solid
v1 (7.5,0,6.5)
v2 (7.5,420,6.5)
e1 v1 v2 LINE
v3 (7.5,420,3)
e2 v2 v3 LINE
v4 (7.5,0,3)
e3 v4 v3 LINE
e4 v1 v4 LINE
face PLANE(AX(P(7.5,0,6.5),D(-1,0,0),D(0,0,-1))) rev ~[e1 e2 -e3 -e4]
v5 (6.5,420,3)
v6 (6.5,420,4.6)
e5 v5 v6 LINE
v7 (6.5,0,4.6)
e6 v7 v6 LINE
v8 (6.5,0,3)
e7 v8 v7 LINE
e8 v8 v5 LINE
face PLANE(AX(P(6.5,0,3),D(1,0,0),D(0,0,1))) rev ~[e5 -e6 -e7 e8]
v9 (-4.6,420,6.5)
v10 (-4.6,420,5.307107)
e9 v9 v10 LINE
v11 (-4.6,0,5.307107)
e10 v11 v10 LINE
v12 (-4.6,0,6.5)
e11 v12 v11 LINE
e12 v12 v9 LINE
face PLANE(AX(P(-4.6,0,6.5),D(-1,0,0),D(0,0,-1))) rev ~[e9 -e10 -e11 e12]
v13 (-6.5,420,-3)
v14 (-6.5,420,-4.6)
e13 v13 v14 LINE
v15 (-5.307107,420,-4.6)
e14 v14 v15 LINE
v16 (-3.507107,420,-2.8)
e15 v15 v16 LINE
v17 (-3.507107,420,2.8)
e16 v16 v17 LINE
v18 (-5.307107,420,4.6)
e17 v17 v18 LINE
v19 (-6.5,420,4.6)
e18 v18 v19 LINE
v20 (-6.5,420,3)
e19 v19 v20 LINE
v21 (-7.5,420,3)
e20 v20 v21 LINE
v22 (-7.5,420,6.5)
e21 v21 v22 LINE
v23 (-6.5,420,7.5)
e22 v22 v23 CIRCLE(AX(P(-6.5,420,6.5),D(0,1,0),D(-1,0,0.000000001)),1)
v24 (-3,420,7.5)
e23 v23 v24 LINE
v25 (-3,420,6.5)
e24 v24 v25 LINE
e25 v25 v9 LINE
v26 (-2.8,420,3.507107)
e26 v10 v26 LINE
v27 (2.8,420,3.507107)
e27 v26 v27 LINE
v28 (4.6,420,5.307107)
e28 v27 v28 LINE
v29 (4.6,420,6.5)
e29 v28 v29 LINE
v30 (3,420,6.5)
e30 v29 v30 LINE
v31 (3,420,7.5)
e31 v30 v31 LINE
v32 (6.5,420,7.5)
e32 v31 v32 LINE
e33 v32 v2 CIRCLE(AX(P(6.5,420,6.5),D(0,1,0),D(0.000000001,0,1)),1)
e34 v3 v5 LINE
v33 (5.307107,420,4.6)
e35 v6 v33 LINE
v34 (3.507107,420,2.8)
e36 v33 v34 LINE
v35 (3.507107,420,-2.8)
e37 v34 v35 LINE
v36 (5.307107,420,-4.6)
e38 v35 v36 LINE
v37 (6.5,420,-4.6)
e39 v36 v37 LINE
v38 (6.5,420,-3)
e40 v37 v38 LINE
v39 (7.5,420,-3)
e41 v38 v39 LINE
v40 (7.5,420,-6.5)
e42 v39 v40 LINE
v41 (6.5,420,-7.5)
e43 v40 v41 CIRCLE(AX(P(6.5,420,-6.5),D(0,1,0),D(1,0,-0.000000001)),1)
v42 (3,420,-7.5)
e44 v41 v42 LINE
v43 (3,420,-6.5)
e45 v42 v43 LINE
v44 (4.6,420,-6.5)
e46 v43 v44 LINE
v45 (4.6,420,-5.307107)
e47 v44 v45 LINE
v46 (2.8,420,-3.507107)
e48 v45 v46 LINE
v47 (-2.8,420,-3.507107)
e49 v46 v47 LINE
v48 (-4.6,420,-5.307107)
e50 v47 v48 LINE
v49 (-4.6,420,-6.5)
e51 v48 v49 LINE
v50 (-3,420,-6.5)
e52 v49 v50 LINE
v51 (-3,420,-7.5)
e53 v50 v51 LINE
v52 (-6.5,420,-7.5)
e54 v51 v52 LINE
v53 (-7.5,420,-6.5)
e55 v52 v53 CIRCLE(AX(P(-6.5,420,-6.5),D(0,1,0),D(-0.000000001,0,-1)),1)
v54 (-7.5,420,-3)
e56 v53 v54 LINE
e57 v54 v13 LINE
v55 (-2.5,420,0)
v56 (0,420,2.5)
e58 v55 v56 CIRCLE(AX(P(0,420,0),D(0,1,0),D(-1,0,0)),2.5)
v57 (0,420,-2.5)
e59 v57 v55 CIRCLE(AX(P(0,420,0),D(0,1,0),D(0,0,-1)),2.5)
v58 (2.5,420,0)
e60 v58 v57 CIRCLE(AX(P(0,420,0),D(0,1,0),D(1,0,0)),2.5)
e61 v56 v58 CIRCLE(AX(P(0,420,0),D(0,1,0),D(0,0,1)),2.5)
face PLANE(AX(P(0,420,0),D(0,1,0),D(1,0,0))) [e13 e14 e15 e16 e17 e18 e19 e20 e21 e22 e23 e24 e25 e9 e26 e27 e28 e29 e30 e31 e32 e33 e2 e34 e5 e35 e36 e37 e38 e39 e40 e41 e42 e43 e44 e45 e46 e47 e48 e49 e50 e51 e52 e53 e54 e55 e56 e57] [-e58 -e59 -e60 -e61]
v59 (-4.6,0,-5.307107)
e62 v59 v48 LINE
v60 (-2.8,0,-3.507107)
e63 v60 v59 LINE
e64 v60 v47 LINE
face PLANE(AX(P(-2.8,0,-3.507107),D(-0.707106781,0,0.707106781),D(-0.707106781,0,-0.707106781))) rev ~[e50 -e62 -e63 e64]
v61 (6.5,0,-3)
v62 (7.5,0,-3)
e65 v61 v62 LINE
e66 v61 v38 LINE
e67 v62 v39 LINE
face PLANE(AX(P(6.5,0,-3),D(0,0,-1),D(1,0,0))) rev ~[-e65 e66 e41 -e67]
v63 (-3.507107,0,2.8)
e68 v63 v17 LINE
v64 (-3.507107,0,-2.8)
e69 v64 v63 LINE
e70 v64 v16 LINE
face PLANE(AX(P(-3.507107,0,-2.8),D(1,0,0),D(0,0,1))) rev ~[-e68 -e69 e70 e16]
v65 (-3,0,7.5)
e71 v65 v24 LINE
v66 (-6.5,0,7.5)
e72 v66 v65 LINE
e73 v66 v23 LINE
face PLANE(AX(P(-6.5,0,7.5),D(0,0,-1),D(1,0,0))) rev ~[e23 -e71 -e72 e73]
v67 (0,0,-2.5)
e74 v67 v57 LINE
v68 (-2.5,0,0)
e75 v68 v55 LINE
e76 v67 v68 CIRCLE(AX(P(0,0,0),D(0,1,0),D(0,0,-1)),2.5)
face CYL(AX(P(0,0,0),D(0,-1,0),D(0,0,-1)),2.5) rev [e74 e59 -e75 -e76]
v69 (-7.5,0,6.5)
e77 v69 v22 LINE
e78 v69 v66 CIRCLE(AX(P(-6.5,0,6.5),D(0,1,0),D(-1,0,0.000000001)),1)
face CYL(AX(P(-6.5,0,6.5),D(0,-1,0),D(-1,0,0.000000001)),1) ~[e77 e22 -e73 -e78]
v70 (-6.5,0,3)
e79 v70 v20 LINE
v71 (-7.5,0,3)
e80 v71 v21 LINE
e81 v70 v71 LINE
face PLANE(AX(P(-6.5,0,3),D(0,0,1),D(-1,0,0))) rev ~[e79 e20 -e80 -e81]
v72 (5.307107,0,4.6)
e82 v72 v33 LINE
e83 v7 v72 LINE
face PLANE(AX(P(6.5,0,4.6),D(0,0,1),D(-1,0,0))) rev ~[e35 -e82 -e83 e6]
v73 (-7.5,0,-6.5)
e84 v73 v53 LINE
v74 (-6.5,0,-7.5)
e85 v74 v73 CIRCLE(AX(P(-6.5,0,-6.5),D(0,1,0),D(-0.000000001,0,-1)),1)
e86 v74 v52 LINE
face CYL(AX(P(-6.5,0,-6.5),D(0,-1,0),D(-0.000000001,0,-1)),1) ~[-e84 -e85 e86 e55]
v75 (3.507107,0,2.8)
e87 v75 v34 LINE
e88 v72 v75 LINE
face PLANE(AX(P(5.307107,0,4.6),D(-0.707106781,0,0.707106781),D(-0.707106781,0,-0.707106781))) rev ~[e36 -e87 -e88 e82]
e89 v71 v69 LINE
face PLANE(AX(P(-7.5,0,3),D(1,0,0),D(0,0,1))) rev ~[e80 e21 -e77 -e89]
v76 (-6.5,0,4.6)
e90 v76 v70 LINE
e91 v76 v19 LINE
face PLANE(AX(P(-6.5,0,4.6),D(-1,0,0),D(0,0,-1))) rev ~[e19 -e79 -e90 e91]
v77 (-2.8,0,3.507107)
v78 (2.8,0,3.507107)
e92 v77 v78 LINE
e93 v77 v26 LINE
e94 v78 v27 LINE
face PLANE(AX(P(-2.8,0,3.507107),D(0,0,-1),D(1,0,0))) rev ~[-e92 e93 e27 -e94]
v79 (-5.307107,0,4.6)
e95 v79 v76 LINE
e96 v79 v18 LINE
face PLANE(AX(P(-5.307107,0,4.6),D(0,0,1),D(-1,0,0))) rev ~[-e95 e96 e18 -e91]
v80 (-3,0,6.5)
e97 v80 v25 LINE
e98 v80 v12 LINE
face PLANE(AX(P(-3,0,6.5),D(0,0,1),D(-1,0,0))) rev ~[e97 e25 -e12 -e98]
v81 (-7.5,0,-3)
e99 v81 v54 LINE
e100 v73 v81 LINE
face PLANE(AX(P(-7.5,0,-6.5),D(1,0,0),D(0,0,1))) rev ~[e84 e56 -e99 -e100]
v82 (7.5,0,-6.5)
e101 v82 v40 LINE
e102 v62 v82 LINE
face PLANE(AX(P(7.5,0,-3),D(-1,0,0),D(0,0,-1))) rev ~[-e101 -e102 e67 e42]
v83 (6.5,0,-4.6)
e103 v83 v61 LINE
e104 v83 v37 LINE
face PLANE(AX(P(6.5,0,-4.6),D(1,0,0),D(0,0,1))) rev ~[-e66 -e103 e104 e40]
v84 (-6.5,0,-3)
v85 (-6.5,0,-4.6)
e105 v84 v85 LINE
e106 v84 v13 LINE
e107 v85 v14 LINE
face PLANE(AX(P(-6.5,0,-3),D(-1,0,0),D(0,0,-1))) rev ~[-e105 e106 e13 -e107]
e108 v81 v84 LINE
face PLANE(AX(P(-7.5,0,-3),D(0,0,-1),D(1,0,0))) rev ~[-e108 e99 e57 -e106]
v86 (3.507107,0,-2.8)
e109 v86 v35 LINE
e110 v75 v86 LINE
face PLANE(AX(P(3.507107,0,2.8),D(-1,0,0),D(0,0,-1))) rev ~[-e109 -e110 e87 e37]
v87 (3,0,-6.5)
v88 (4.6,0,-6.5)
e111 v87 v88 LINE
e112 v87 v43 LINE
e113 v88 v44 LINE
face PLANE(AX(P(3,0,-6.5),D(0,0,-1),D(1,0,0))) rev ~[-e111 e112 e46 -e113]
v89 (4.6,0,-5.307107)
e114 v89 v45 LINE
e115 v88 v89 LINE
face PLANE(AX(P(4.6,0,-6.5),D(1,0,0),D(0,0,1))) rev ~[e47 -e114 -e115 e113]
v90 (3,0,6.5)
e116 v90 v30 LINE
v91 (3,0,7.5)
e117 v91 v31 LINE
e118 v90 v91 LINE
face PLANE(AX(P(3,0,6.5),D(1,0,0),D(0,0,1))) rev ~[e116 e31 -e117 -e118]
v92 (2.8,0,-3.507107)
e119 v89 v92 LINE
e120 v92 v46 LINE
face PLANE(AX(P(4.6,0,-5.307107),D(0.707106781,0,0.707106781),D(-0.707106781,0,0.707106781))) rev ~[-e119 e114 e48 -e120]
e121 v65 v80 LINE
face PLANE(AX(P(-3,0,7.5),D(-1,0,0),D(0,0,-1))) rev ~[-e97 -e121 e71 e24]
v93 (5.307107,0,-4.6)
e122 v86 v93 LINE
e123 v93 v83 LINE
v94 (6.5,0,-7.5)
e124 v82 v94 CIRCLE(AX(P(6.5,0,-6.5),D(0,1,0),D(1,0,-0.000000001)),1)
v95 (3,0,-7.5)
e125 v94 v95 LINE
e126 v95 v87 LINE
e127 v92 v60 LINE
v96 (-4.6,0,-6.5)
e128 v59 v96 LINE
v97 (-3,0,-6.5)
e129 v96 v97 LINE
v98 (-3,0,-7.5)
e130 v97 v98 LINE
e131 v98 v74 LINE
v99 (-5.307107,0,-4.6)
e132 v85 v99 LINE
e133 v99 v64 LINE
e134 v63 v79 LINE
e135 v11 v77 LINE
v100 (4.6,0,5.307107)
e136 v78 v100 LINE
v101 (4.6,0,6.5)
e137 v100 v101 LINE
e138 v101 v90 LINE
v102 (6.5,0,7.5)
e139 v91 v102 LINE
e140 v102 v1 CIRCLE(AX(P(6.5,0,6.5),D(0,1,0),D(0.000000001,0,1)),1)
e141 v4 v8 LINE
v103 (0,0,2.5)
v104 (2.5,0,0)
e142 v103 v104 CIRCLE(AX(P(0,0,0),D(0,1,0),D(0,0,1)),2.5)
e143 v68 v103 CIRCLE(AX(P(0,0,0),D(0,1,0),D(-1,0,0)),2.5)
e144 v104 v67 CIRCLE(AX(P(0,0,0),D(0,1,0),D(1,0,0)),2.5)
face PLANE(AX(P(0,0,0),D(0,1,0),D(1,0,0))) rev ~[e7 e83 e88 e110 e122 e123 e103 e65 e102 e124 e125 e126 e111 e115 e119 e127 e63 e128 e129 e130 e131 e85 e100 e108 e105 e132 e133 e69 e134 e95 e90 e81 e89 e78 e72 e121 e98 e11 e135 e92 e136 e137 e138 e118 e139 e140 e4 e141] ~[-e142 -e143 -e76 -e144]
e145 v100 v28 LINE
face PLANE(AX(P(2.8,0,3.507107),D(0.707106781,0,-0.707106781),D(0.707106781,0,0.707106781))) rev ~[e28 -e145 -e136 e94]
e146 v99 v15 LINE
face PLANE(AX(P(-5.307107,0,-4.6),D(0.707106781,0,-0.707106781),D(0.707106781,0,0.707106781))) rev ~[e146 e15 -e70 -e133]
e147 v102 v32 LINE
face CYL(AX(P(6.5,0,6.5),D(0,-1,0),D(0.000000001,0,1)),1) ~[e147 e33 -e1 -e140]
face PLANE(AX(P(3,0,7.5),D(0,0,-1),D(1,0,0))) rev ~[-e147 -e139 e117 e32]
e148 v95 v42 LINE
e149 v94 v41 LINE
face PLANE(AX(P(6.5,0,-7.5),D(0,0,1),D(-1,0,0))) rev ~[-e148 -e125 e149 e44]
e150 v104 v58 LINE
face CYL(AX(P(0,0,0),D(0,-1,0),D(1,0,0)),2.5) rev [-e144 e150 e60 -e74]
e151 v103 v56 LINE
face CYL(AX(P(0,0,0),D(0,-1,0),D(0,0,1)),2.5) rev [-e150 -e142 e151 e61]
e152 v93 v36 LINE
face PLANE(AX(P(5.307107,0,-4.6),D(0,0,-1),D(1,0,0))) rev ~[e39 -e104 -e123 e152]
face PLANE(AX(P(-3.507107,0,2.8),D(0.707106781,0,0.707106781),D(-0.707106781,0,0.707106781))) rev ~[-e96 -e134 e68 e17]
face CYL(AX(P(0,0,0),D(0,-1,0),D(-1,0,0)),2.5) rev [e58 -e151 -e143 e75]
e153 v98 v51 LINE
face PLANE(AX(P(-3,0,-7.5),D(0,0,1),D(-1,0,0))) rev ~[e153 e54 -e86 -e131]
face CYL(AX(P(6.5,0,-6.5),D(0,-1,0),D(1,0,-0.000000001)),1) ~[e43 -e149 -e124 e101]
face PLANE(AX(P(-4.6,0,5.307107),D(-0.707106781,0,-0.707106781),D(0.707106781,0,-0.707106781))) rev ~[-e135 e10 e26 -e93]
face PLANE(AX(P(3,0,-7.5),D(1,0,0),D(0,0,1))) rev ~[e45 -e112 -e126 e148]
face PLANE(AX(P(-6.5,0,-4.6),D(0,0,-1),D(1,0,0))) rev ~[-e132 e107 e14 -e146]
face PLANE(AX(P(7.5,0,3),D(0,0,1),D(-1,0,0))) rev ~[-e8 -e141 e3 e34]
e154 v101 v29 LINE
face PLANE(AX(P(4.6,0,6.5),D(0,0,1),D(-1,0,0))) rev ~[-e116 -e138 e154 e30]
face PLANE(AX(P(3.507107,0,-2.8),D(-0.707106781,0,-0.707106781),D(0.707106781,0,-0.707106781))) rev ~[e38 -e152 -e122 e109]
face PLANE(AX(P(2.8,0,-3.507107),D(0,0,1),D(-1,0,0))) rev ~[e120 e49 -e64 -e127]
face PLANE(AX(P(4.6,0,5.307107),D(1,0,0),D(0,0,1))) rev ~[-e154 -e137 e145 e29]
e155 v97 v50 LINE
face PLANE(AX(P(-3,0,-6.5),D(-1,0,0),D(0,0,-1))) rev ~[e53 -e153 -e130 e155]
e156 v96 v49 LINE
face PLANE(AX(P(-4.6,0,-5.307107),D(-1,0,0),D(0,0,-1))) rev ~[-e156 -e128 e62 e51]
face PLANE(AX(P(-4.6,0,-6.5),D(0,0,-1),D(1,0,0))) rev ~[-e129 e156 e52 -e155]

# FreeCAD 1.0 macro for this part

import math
import FreeCAD as App
import Part
import Sketcher

V = App.Vector
Q = App.Units.Quantity

doc = App.newDocument("Part")
params = doc.addObject("Spreadsheet::Sheet", "Params")
for row, (alias, value) in enumerate([
    ("sketch1_radius", "1 mm"),
    ("sketch1_radius2", "2.5 mm"),
    ("sketch1_width", "3.5 mm"),
    ("sketch1_width2", "1.6 mm"),
    ("sketch1_width3", "5.6 mm"),
    ("pad1_length", "420 mm"),
], start=1):
    params.set(f"A{row}", alias)
    params.set(f"B{row}", "=" + value)
    params.setAlias(f"B{row}", alias)

body = doc.addObject("PartDesign::Body", "Body")

# Sketch on XZ plane
sketch1 = body.newObject("Sketcher::SketchObject", "Sketch")
sketch1.AttachmentSupport = (doc.getObject("XZ_Plane"), [""])
sketch1.MapMode = "FlatFace"
sketch1.addGeometry([
    Part.LineSegment(V(-7.5, 3, 0), V(-7.5, 6.5, 0)),  # 0
    Part.ArcOfCircle(Part.Circle(V(-6.5, 6.5, 0), V(0, 0, 1), 1), math.radians(90), math.radians(180)),  # 1
    Part.LineSegment(V(-6.5, 7.5, 0), V(-3, 7.5, 0)),  # 2
    Part.LineSegment(V(-3, 7.5, 0), V(-3, 6.5, 0)),  # 3
    Part.LineSegment(V(-3, 6.5, 0), V(-4.6, 6.5, 0)),  # 4
    Part.LineSegment(V(-4.6, 6.5, 0), V(-4.6, 5.3, 0)),  # 5
    Part.LineSegment(V(-4.6, 5.3, 0), V(-2.8, 3.5, 0)),  # 6
    Part.LineSegment(V(-2.8, 3.5, 0), V(2.8, 3.5, 0)),  # 7
    Part.LineSegment(V(2.8, 3.5, 0), V(4.6, 5.3, 0)),  # 8
    Part.LineSegment(V(4.6, 5.3, 0), V(4.6, 6.5, 0)),  # 9
    Part.LineSegment(V(4.6, 6.5, 0), V(3, 6.5, 0)),  # 10
    Part.LineSegment(V(3, 6.5, 0), V(3, 7.5, 0)),  # 11
    Part.LineSegment(V(3, 7.5, 0), V(6.5, 7.5, 0)),  # 12
    Part.ArcOfCircle(Part.Circle(V(6.5, 6.5, 0), V(0, 0, 1), 1), math.radians(0), math.radians(90)),  # 13
    Part.LineSegment(V(7.5, 6.5, 0), V(7.5, 3, 0)),  # 14
    Part.LineSegment(V(7.5, 3, 0), V(6.5, 3, 0)),  # 15
    Part.LineSegment(V(6.5, 3, 0), V(6.5, 4.6, 0)),  # 16
    Part.LineSegment(V(6.5, 4.6, 0), V(5.3, 4.6, 0)),  # 17
    Part.LineSegment(V(5.3, 4.6, 0), V(3.5, 2.8, 0)),  # 18
    Part.LineSegment(V(3.5, 2.8, 0), V(3.5, -2.8, 0)),  # 19
    Part.LineSegment(V(3.5, -2.8, 0), V(5.3, -4.6, 0)),  # 20
    Part.LineSegment(V(5.3, -4.6, 0), V(6.5, -4.6, 0)),  # 21
    Part.LineSegment(V(6.5, -4.6, 0), V(6.5, -3, 0)),  # 22
    Part.LineSegment(V(6.5, -3, 0), V(7.5, -3, 0)),  # 23
    Part.LineSegment(V(7.5, -3, 0), V(7.5, -6.5, 0)),  # 24
    Part.ArcOfCircle(Part.Circle(V(6.5, -6.5, 0), V(0, 0, 1), 1), math.radians(-90), math.radians(0)),  # 25
    Part.LineSegment(V(6.5, -7.5, 0), V(3, -7.5, 0)),  # 26
    Part.LineSegment(V(3, -7.5, 0), V(3, -6.5, 0)),  # 27
    Part.LineSegment(V(3, -6.5, 0), V(4.6, -6.5, 0)),  # 28
    Part.LineSegment(V(4.6, -6.5, 0), V(4.6, -5.3, 0)),  # 29
    Part.LineSegment(V(4.6, -5.3, 0), V(2.8, -3.5, 0)),  # 30
    Part.LineSegment(V(2.8, -3.5, 0), V(-2.8, -3.5, 0)),  # 31
    Part.LineSegment(V(-2.8, -3.5, 0), V(-4.6, -5.3, 0)),  # 32
    Part.LineSegment(V(-4.6, -5.3, 0), V(-4.6, -6.5, 0)),  # 33
    Part.LineSegment(V(-4.6, -6.5, 0), V(-3, -6.5, 0)),  # 34
    Part.LineSegment(V(-3, -6.5, 0), V(-3, -7.5, 0)),  # 35
    Part.LineSegment(V(-3, -7.5, 0), V(-6.5, -7.5, 0)),  # 36
    Part.ArcOfCircle(Part.Circle(V(-6.5, -6.5, 0), V(0, 0, 1), 1), math.radians(-180), math.radians(-90)),  # 37
    Part.LineSegment(V(-7.5, -6.5, 0), V(-7.5, -3, 0)),  # 38
    Part.LineSegment(V(-7.5, -3, 0), V(-6.5, -3, 0)),  # 39
    Part.LineSegment(V(-6.5, -3, 0), V(-6.5, -4.6, 0)),  # 40
    Part.LineSegment(V(-6.5, -4.6, 0), V(-5.3, -4.6, 0)),  # 41
    Part.LineSegment(V(-5.3, -4.6, 0), V(-3.5, -2.8, 0)),  # 42
    Part.LineSegment(V(-3.5, -2.8, 0), V(-3.5, 2.8, 0)),  # 43
    Part.LineSegment(V(-3.5, 2.8, 0), V(-5.3, 4.6, 0)),  # 44
    Part.LineSegment(V(-5.3, 4.6, 0), V(-6.5, 4.6, 0)),  # 45
    Part.LineSegment(V(-6.5, 4.6, 0), V(-6.5, 3, 0)),  # 46
    Part.LineSegment(V(-6.5, 3, 0), V(-7.5, 3, 0)),  # 47
    Part.ArcOfCircle(Part.Circle(V(0, 0, 0), V(0, 0, 1), 2.5), math.radians(90), math.radians(180)),  # 48
    Part.ArcOfCircle(Part.Circle(V(0, 0, 0), V(0, 0, 1), 2.5), math.radians(180), math.radians(270)),  # 49
    Part.ArcOfCircle(Part.Circle(V(0, 0, 0), V(0, 0, 1), 2.5), math.radians(-90), math.radians(0)),  # 50
    Part.ArcOfCircle(Part.Circle(V(0, 0, 0), V(0, 0, 1), 2.5), math.radians(0), math.radians(90)),  # 51
], False)
sketch1.addConstraint([
    Sketcher.Constraint("Tangent", 0, 2, 1, 2),
    Sketcher.Constraint("Tangent", 1, 1, 2, 1),
    Sketcher.Constraint("Coincident", 2, 2, 3, 1),
    Sketcher.Constraint("Coincident", 3, 2, 4, 1),
    Sketcher.Constraint("Coincident", 4, 2, 5, 1),
    Sketcher.Constraint("Coincident", 5, 2, 6, 1),
    Sketcher.Constraint("Coincident", 6, 2, 7, 1),
    Sketcher.Constraint("Coincident", 7, 2, 8, 1),
    Sketcher.Constraint("Coincident", 8, 2, 9, 1),
    Sketcher.Constraint("Coincident", 9, 2, 10, 1),
    Sketcher.Constraint("Coincident", 10, 2, 11, 1),
    Sketcher.Constraint("Coincident", 11, 2, 12, 1),
    Sketcher.Constraint("Tangent", 12, 2, 13, 2),
    Sketcher.Constraint("Tangent", 13, 1, 14, 1),
    Sketcher.Constraint("Coincident", 14, 2, 15, 1),
    Sketcher.Constraint("Coincident", 15, 2, 16, 1),
    Sketcher.Constraint("Coincident", 16, 2, 17, 1),
    Sketcher.Constraint("Coincident", 17, 2, 18, 1),
    Sketcher.Constraint("Coincident", 18, 2, 19, 1),
    Sketcher.Constraint("Coincident", 19, 2, 20, 1),
    Sketcher.Constraint("Coincident", 20, 2, 21, 1),
    Sketcher.Constraint("Coincident", 21, 2, 22, 1),
    Sketcher.Constraint("Coincident", 22, 2, 23, 1),
    Sketcher.Constraint("Coincident", 23, 2, 24, 1),
    Sketcher.Constraint("Tangent", 24, 2, 25, 2),
    Sketcher.Constraint("Tangent", 25, 1, 26, 1),
    Sketcher.Constraint("Coincident", 26, 2, 27, 1),
    Sketcher.Constraint("Coincident", 27, 2, 28, 1),
    Sketcher.Constraint("Coincident", 28, 2, 29, 1),
    Sketcher.Constraint("Coincident", 29, 2, 30, 1),
    Sketcher.Constraint("Coincident", 30, 2, 31, 1),
    Sketcher.Constraint("Coincident", 31, 2, 32, 1),
    Sketcher.Constraint("Coincident", 32, 2, 33, 1),
    Sketcher.Constraint("Coincident", 33, 2, 34, 1),
    Sketcher.Constraint("Coincident", 34, 2, 35, 1),
    Sketcher.Constraint("Coincident", 35, 2, 36, 1),
    Sketcher.Constraint("Tangent", 36, 2, 37, 2),
    Sketcher.Constraint("Tangent", 37, 1, 38, 1),
    Sketcher.Constraint("Coincident", 38, 2, 39, 1),
    Sketcher.Constraint("Coincident", 39, 2, 40, 1),
    Sketcher.Constraint("Coincident", 40, 2, 41, 1),
    Sketcher.Constraint("Coincident", 41, 2, 42, 1),
    Sketcher.Constraint("Coincident", 42, 2, 43, 1),
    Sketcher.Constraint("Coincident", 43, 2, 44, 1),
    Sketcher.Constraint("Coincident", 44, 2, 45, 1),
    Sketcher.Constraint("Coincident", 45, 2, 46, 1),
    Sketcher.Constraint("Coincident", 46, 2, 47, 1),
    Sketcher.Constraint("Coincident", 47, 2, 0, 1),
    Sketcher.Constraint("Tangent", 48, 2, 49, 1),
    Sketcher.Constraint("Tangent", 49, 2, 50, 1),
    Sketcher.Constraint("Tangent", 50, 2, 51, 1),
    Sketcher.Constraint("Tangent", 51, 2, 48, 1),
    Sketcher.Constraint("Vertical", 0),
    Sketcher.Constraint("Horizontal", 2),
    Sketcher.Constraint("Vertical", 3),
    Sketcher.Constraint("Horizontal", 4),
    Sketcher.Constraint("Vertical", 5),
    Sketcher.Constraint("Horizontal", 7),
    Sketcher.Constraint("Vertical", 9),
    Sketcher.Constraint("Horizontal", 10),
    Sketcher.Constraint("Vertical", 11),
    Sketcher.Constraint("Horizontal", 12),
    Sketcher.Constraint("Vertical", 14),
    Sketcher.Constraint("Horizontal", 15),
    Sketcher.Constraint("Vertical", 16),
    Sketcher.Constraint("Horizontal", 17),
    Sketcher.Constraint("Vertical", 19),
    Sketcher.Constraint("Horizontal", 21),
    Sketcher.Constraint("Vertical", 22),
    Sketcher.Constraint("Horizontal", 23),
    Sketcher.Constraint("Vertical", 24),
    Sketcher.Constraint("Horizontal", 26),
    Sketcher.Constraint("Vertical", 27),
    Sketcher.Constraint("Horizontal", 28),
    Sketcher.Constraint("Vertical", 29),
    Sketcher.Constraint("Horizontal", 31),
    Sketcher.Constraint("Vertical", 33),
    Sketcher.Constraint("Horizontal", 34),
    Sketcher.Constraint("Vertical", 35),
    Sketcher.Constraint("Horizontal", 36),
    Sketcher.Constraint("Vertical", 38),
    Sketcher.Constraint("Horizontal", 39),
    Sketcher.Constraint("Vertical", 40),
    Sketcher.Constraint("Horizontal", 41),
    Sketcher.Constraint("Vertical", 43),
    Sketcher.Constraint("Horizontal", 45),
    Sketcher.Constraint("Vertical", 46),
    Sketcher.Constraint("Horizontal", 47),
    Sketcher.Constraint("Coincident", 48, 3, -1, 1),
    Sketcher.Constraint("Equal", 1, 13),
    Sketcher.Constraint("Equal", 13, 25),
    Sketcher.Constraint("Equal", 25, 37),
    Sketcher.Constraint("Equal", 48, 49),
    Sketcher.Constraint("Symmetric", 1, 3, 25, 3, -1, 1),
    Sketcher.Constraint("Symmetric", 13, 3, 37, 3, -1, 1),
    Sketcher.Constraint("Symmetric", 3, 2, 27, 2, -1, 1),
    Sketcher.Constraint("Symmetric", 5, 2, 29, 2, -1, 1),
    Sketcher.Constraint("Symmetric", 6, 2, 30, 2, -1, 1),
    Sketcher.Constraint("Symmetric", 8, 2, 32, 2, -1, 1),
    Sketcher.Constraint("Symmetric", 10, 2, 34, 2, -1, 1),
    Sketcher.Constraint("Symmetric", 15, 2, 39, 2, -1, 1),
    Sketcher.Constraint("Symmetric", 17, 2, 41, 2, -1, 1),
    Sketcher.Constraint("Symmetric", 18, 2, 42, 2, -1, 1),
    Sketcher.Constraint("Symmetric", 20, 2, 44, 2, -1, 1),
    Sketcher.Constraint("Symmetric", 22, 2, 46, 2, -1, 1),
    Sketcher.Constraint("Symmetric", 1, 3, 13, 3, -2),
    Sketcher.Constraint("Symmetric", 5, 2, 8, 2, -2),
    Sketcher.Constraint("Symmetric", 3, 2, 10, 2, -2),
    Sketcher.Constraint("Symmetric", 22, 2, 39, 2, -2),
    Sketcher.Constraint("Symmetric", 20, 2, 41, 2, -2),
    Sketcher.Constraint("PointOnObject", 48, 2, -1),
    Sketcher.Constraint("PointOnObject", 49, 2, -2),
    Sketcher.Constraint("PointOnObject", 50, 2, -1),
    Sketcher.Constraint("PointOnObject", 51, 2, -2),
    Sketcher.Constraint("Perpendicular", 6, 8),
    Sketcher.Constraint("Parallel", 8, 18),
    Sketcher.Constraint("Perpendicular", 18, 20),
    Sketcher.Constraint("Perpendicular", 30, 32),
    Sketcher.Constraint("Perpendicular", 42, 44),
    Sketcher.Constraint("Horizontal", 0, 2, 3, 2),
    Sketcher.Constraint("Horizontal", 19, 2, 42, 2),
    Sketcher.Constraint("Vertical", 12, 2, 15, 2),
    Sketcher.Constraint("Equal", 36, 0),
    Sketcher.Constraint("Equal", 45, 5),
    Sketcher.Constraint("Equal", 34, 16),
    Sketcher.Constraint("Equal", 31, 19),
    Sketcher.Constraint("Equal", 8, 18),
    Sketcher.Constraint("Radius", 1, Q("1 mm")),
    Sketcher.Constraint("Radius", 48, Q("2.5 mm")),
    Sketcher.Constraint("DistanceX", 2, 1, 2, 2, Q("3.5 mm")),
    Sketcher.Constraint("DistanceX", 4, 2, 4, 1, Q("1.6 mm")),
    Sketcher.Constraint("DistanceX", 7, 1, 7, 2, Q("5.6 mm")),
    Sketcher.Constraint("DistanceX", 2, 2, -1, 1, Q("3 mm")),
    Sketcher.Constraint("DistanceX", 17, 2, 17, 1, Q("1.192893 mm")),
])
sketch1.setExpression("Constraints[127]", "Params.sketch1_radius")
sketch1.setExpression("Constraints[128]", "Params.sketch1_radius2")
sketch1.setExpression("Constraints[129]", "Params.sketch1_width")
sketch1.setExpression("Constraints[130]", "Params.sketch1_width2")
sketch1.setExpression("Constraints[131]", "Params.sketch1_width3")
pad1 = body.newObject("PartDesign::Pad", "Pad")
pad1.Profile = sketch1
pad1.setExpression("Length", "Params.pad1_length")
pad1.Reversed = True

doc.recompute()
